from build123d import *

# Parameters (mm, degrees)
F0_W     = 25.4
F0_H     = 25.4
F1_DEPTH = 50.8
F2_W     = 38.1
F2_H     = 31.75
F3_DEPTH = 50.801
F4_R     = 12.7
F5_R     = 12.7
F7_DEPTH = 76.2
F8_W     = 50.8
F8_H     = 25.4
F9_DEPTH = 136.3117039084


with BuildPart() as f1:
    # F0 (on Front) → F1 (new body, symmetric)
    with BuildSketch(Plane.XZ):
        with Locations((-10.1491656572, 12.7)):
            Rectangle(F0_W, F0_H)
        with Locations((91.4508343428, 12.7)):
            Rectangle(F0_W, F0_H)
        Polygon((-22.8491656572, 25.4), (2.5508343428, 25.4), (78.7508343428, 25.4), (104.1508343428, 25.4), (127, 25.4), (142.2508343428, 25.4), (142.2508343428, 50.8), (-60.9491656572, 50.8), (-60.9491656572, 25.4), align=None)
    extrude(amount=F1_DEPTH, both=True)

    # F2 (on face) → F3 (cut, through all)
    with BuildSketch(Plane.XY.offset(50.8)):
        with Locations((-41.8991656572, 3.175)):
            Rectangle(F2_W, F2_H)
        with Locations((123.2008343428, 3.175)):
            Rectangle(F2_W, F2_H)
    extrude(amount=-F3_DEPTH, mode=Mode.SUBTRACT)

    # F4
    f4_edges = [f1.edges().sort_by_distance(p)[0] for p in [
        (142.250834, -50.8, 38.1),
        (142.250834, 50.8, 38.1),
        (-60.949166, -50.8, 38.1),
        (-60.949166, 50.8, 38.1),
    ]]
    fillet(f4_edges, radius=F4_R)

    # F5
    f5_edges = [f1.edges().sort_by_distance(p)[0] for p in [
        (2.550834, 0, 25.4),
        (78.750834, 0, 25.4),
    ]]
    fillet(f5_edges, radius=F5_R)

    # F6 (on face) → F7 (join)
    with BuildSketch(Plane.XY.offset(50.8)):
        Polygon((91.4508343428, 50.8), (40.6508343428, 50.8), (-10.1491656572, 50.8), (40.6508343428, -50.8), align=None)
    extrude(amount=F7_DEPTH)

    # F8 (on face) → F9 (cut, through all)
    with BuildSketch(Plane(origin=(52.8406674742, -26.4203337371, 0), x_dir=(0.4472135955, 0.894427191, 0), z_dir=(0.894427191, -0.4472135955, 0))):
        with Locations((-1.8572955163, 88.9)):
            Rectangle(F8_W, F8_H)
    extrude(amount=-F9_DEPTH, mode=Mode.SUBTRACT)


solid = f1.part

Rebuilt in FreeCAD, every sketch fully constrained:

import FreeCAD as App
import Part
import Sketcher

V = App.Vector
Q = App.Units.Quantity


def edges_at(feature, points):
    """Names of the edges that pass closest to the given points."""
    edges = feature.Shape.Edges
    near = lambda p: min(range(len(edges)), key=lambda i: edges[i].distToShape(Part.Vertex(*p))[0])
    return sorted({f"Edge{near(p) + 1}" for p in points})


def add_polygon(sketch, points):
    """Adds a closed chain of lines whose ends are joined by coincident constraints."""
    first, n = sketch.GeometryCount, len(points)
    for a, b in zip(points, points[1:] + points[:1]):
        sketch.addGeometry(Part.LineSegment(App.Vector(*a, 0), App.Vector(*b, 0)), False)
    for i in range(n):
        sketch.addConstraint(Sketcher.Constraint("Coincident", first + i, 2, first + (i + 1) % n, 1))

doc = App.newDocument("Part")
body = doc.addObject("PartDesign::Body", "Body")

# Sketch on XZ plane
sketch1 = body.newObject("Sketcher::SketchObject", "Sketch")
sketch1.AttachmentSupport = (doc.getObject("XZ_Plane"), [""])
sketch1.MapMode = "FlatFace"
add_polygon(sketch1, [(-23, 25), (-23, 0), (3, 0), (3, 25), (79, 25), (79, 0), (104, 0), (104, 25), (142, 25), (142, 51), (-61, 51), (-61, 25)])  # lines 0-11
sketch1.addConstraint(Sketcher.Constraint("Vertical", 0))
sketch1.addConstraint(Sketcher.Constraint("Horizontal", 1))
sketch1.addConstraint(Sketcher.Constraint("Vertical", 2))
sketch1.addConstraint(Sketcher.Constraint("Horizontal", 3))
sketch1.addConstraint(Sketcher.Constraint("Vertical", 4))
sketch1.addConstraint(Sketcher.Constraint("Horizontal", 5))
sketch1.addConstraint(Sketcher.Constraint("Vertical", 6))
sketch1.addConstraint(Sketcher.Constraint("Horizontal", 7))
sketch1.addConstraint(Sketcher.Constraint("Vertical", 8))
sketch1.addConstraint(Sketcher.Constraint("Horizontal", 9))
sketch1.addConstraint(Sketcher.Constraint("Vertical", 10))
sketch1.addConstraint(Sketcher.Constraint("Horizontal", 11))
sketch1.addConstraint(Sketcher.Constraint("PointOnObject", 0, 2, -1))
sketch1.addConstraint(Sketcher.Constraint("PointOnObject", 4, 2, -1))
sketch1.addConstraint(Sketcher.Constraint("Horizontal", 3, 2, 6, 2))
sketch1.addConstraint(Sketcher.Constraint("Horizontal", 7, 2, 10, 2))
sketch1.addConstraint(Sketcher.Constraint("Equal", 1, 5))
sketch1.addConstraint(Sketcher.Constraint("Equal", 7, 11))
sketch1.addConstraint(Sketcher.Constraint("Equal", 5, 0))
sketch1.addConstraint(Sketcher.Constraint("Equal", 6, 8))
sketch1.addConstraint(Sketcher.Constraint("DistanceX", 1, 1, 1, 2, Q("1 in")))
sketch1.addConstraint(Sketcher.Constraint("DistanceX", 3, 1, 3, 2, Q("3 in")))
sketch1.addConstraint(Sketcher.Constraint("DistanceX", 9, 2, 9, 1, Q("8 in")))
sketch1.addConstraint(Sketcher.Constraint("DistanceX", 0, 2, -1, 1, Q("22.849166 mm")))
pad1 = body.newObject("PartDesign::Pad", "Pad")
pad1.Profile = sketch1
pad1.Length = Q("4 in")
pad1.Midplane = True

# Sketch on XY plane
sketch2 = body.newObject("Sketcher::SketchObject", "Sketch001")
sketch2.AttachmentSupport = (doc.getObject("XY_Plane"), [""])
sketch2.MapMode = "FlatFace"
sketch2.AttachmentOffset = App.Placement(V(0, 0, 2 * 25.4), App.Rotation())
add_polygon(sketch2, [(-61, 19), (-61, -13), (-23, -13), (-23, 19)])  # lines 0-3
add_polygon(sketch2, [(104, 19), (104, -13), (142, -13), (142, 19)])  # lines 4-7
sketch2.addConstraint(Sketcher.Constraint("Vertical", 0))
sketch2.addConstraint(Sketcher.Constraint("Horizontal", 1))
sketch2.addConstraint(Sketcher.Constraint("Vertical", 2))
sketch2.addConstraint(Sketcher.Constraint("Horizontal", 3))
sketch2.addConstraint(Sketcher.Constraint("Vertical", 4))
sketch2.addConstraint(Sketcher.Constraint("Horizontal", 5))
sketch2.addConstraint(Sketcher.Constraint("Vertical", 6))
sketch2.addConstraint(Sketcher.Constraint("Horizontal", 7))
sketch2.addConstraint(Sketcher.Constraint("Horizontal", 1, 2, 4, 2))
sketch2.addConstraint(Sketcher.Constraint("Horizontal", 3, 2, 6, 2))
sketch2.addConstraint(Sketcher.Constraint("Equal", 3, 5))
sketch2.addConstraint(Sketcher.Constraint("DistanceX", 1, 1, 1, 2, Q("1.5 in")))
sketch2.addConstraint(Sketcher.Constraint("DistanceX", 1, 2, 4, 2, Q("5 in")))
sketch2.addConstraint(Sketcher.Constraint("DistanceY", 0, 2, 0, 1, Q("1.25 in")))
sketch2.addConstraint(Sketcher.Constraint("DistanceY", 0, 2, -1, 1, Q("0.5 in")))
sketch2.addConstraint(Sketcher.Constraint("DistanceX", 0, 2, -1, 1, Q("60.949166 mm")))
pocket1 = body.newObject("PartDesign::Pocket", "Pocket")
pocket1.Profile = sketch2
pocket1.Type = "ThroughAll"
doc.recompute()

fillet = body.newObject("PartDesign::Fillet", "Fillet")
fillet.Base = (pocket1, edges_at(pocket1, [
    (142.251, -50.8, 38.1),
    (142.251, 50.8, 38.1),
    (-60.949, -50.8, 38.1),
    (-60.949, 50.8, 38.1),
]))
fillet.Radius = Q("0.5 in")
doc.recompute()

fillet2 = body.newObject("PartDesign::Fillet", "Fillet001")
fillet2.Base = (fillet, edges_at(fillet, [(2.551, 0, 25.4), (78.751, 0, 25.4)]))
fillet2.Radius = Q("0.5 in")

# Sketch on XY plane
sketch3 = body.newObject("Sketcher::SketchObject", "Sketch002")
sketch3.AttachmentSupport = (doc.getObject("XY_Plane"), [""])
sketch3.MapMode = "FlatFace"
sketch3.AttachmentOffset = App.Placement(V(0, 0, 2 * 25.4), App.Rotation())
add_polygon(sketch3, [(91, 51), (-10, 51), (41, -51)])  # lines 0-2
sketch3.addConstraint(Sketcher.Constraint("Horizontal", 0))
sketch3.addConstraint(Sketcher.Constraint("Equal", 1, 2))
sketch3.addConstraint(Sketcher.Constraint("DistanceX", 0, 2, 0, 1, Q("4 in")))
sketch3.addConstraint(Sketcher.Constraint("DistanceY", -1, 1, 0, 2, Q("2 in")))
sketch3.addConstraint(Sketcher.Constraint("DistanceY", 1, 2, -1, 1, Q("2 in")))
sketch3.addConstraint(Sketcher.Constraint("DistanceX", 0, 2, -1, 1, Q("10.149166 mm")))
pad2 = body.newObject("PartDesign::Pad", "Pad001")
pad2.Profile = sketch3
pad2.Length = Q("3 in")

# Sketch on an angled plane
sketch4 = body.newObject("Sketcher::SketchObject", "Sketch003")
sketch4.Placement = App.Placement(V(52.840667, -26.420334, 0), App.Rotation(V(0.447213595, 0.894427191, 0), V(0, 0, 1), V(0.894427191, -0.447213595, 0), "ZXY"))
add_polygon(sketch4, [(-27, 102), (-27, 76), (24, 76), (24, 102)])  # lines 0-3
sketch4.addConstraint(Sketcher.Constraint("Vertical", 0))
sketch4.addConstraint(Sketcher.Constraint("Horizontal", 1))
sketch4.addConstraint(Sketcher.Constraint("Vertical", 2))
sketch4.addConstraint(Sketcher.Constraint("Horizontal", 3))
sketch4.addConstraint(Sketcher.Constraint("DistanceX", 1, 1, 1, 2, Q("2 in")))
sketch4.addConstraint(Sketcher.Constraint("DistanceY", 0, 2, 0, 1, Q("1 in")))
sketch4.addConstraint(Sketcher.Constraint("DistanceY", -1, 1, 0, 2, Q("3 in")))
sketch4.addConstraint(Sketcher.Constraint("DistanceX", 0, 2, -1, 1, Q("27.257296 mm")))
pocket2 = body.newObject("PartDesign::Pocket", "Pocket001")
pocket2.Profile = sketch4
pocket2.Type = "ThroughAll"

doc.recompute()
